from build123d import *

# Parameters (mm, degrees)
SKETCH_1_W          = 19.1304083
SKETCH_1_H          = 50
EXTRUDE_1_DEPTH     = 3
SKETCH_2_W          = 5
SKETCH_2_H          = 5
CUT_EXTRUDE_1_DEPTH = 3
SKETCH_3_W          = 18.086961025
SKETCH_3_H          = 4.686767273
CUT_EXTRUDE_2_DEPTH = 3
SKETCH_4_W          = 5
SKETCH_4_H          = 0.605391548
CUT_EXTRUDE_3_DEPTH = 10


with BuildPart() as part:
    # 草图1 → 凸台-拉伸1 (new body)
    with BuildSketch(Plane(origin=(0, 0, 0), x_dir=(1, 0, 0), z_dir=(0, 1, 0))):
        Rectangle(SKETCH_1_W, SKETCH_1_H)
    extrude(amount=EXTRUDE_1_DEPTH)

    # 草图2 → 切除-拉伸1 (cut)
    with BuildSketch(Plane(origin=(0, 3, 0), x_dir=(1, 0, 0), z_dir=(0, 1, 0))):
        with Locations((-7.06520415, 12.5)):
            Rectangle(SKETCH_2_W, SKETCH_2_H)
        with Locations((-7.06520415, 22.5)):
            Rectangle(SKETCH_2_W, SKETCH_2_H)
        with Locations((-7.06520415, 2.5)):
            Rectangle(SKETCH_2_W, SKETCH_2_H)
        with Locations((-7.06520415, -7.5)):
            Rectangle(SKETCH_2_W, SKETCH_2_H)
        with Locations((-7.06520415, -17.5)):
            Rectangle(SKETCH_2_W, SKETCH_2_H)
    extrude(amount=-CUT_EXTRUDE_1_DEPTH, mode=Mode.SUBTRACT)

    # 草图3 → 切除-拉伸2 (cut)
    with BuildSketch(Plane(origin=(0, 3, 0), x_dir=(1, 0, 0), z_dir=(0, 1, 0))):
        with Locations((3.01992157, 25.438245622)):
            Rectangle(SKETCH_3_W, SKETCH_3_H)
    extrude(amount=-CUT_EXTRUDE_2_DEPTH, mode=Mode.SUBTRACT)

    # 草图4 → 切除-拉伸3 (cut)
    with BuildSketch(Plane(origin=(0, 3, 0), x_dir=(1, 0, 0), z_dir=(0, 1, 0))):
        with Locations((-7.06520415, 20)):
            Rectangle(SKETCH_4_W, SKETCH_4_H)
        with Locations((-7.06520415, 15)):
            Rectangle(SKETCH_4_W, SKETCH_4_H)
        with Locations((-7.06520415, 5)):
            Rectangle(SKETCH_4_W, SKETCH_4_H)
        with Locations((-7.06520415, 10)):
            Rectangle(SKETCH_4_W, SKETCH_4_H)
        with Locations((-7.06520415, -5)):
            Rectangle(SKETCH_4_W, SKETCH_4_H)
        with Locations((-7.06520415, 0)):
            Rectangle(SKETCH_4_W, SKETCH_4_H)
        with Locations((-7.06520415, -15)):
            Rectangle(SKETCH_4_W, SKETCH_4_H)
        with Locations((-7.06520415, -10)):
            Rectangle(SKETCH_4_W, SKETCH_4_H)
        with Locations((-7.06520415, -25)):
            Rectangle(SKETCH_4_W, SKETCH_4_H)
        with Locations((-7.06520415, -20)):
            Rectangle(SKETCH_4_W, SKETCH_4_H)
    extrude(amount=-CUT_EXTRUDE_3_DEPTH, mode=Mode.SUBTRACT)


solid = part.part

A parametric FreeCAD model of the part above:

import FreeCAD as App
import Part
import Sketcher
from FreeCAD import Vector
Q = App.Units.Quantity

doc = App.newDocument("Part")
params = doc.addObject("Spreadsheet::Sheet", "Params")
for row, (alias, value) in enumerate([
    ("sketch1_height", "50 mm"),
    ("pad1_length", "3 mm"),
    ("sketch2_width", "5 mm"),
    ("pocket1_length", "3 mm"),
    ("pocket2_length", "3 mm"),
    ("sketch4_width", "5 mm"),
    ("pocket3_length", "10 mm"),
], start=1):
    params.set(f"A{row}", alias)
    params.set(f"B{row}", "=" + value)
    params.setAlias(f"B{row}", alias)

body = doc.addObject("PartDesign::Body", "Body")

# Sketch on XZ plane
sketch1 = body.newObject("Sketcher::SketchObject", "Sketch")
sketch1.AttachmentSupport = (doc.getObject("XZ_Plane"), [""])
sketch1.MapMode = "FlatFace"
sketch1.addGeometry(Part.LineSegment(Vector(-9.565204, -25, 0), Vector(-9.565204, 25, 0)), False)
sketch1.addGeometry(Part.LineSegment(Vector(-9.565204, 25, 0), Vector(9.565204, 25, 0)), False)
sketch1.addGeometry(Part.LineSegment(Vector(9.565204, 25, 0), Vector(9.565204, -25, 0)), False)
sketch1.addGeometry(Part.LineSegment(Vector(9.565204, -25, 0), Vector(-9.565204, -25, 0)), False)
sketch1.addConstraint(Sketcher.Constraint("Coincident", 0, 2, 1, 1))
sketch1.addConstraint(Sketcher.Constraint("Coincident", 1, 2, 2, 1))
sketch1.addConstraint(Sketcher.Constraint("Coincident", 2, 2, 3, 1))
sketch1.addConstraint(Sketcher.Constraint("Coincident", 3, 2, 0, 1))
sketch1.addConstraint(Sketcher.Constraint("Vertical", 0))
sketch1.addConstraint(Sketcher.Constraint("Horizontal", 1))
sketch1.addConstraint(Sketcher.Constraint("Vertical", 2))
sketch1.addConstraint(Sketcher.Constraint("Horizontal", 3))
sketch1.addConstraint(Sketcher.Constraint("Symmetric", 0, 2, 2, 2, -1, 1))
sketch1.addConstraint(Sketcher.Constraint("DistanceY", 0, 1, 0, 2, Q("50 mm")))
sketch1.addConstraint(Sketcher.Constraint("DistanceX", 1, 1, 1, 2, Q("19.130408 mm")))
sketch1.setExpression("Constraints[9]", "Params.sketch1_height")
pad1 = body.newObject("PartDesign::Pad", "Pad")
pad1.Profile = sketch1
pad1.setExpression("Length", "Params.pad1_length")
pad1.Reversed = True

# Sketch on XZ plane
sketch2 = body.newObject("Sketcher::SketchObject", "Sketch001")
sketch2.AttachmentSupport = (doc.getObject("XZ_Plane"), [""])
sketch2.MapMode = "FlatFace"
sketch2.AttachmentOffset = App.Placement(Vector(0, 0, -3), App.Rotation())
sketch2.addGeometry(Part.LineSegment(Vector(-9.565204, -15, 0), Vector(-9.565204, -10, 0)), False)
sketch2.addGeometry(Part.LineSegment(Vector(-9.565204, -10, 0), Vector(-4.565204, -10, 0)), False)
sketch2.addGeometry(Part.LineSegment(Vector(-4.565204, -10, 0), Vector(-4.565204, -15, 0)), False)
sketch2.addGeometry(Part.LineSegment(Vector(-4.565204, -15, 0), Vector(-9.565204, -15, 0)), False)
sketch2.addGeometry(Part.LineSegment(Vector(-9.565204, -25, 0), Vector(-9.565204, -20, 0)), False)
sketch2.addGeometry(Part.LineSegment(Vector(-9.565204, -20, 0), Vector(-4.565204, -20, 0)), False)
sketch2.addGeometry(Part.LineSegment(Vector(-4.565204, -20, 0), Vector(-4.565204, -25, 0)), False)
sketch2.addGeometry(Part.LineSegment(Vector(-4.565204, -25, 0), Vector(-9.565204, -25, 0)), False)
sketch2.addGeometry(Part.LineSegment(Vector(-9.565204, -5, 0), Vector(-9.565204, 0, 0)), False)
sketch2.addGeometry(Part.LineSegment(Vector(-9.565204, 0, 0), Vector(-4.565204, 0, 0)), False)
sketch2.addGeometry(Part.LineSegment(Vector(-4.565204, 0, 0), Vector(-4.565204, -5, 0)), False)
sketch2.addGeometry(Part.LineSegment(Vector(-4.565204, -5, 0), Vector(-9.565204, -5, 0)), False)
sketch2.addGeometry(Part.LineSegment(Vector(-9.565204, 5, 0), Vector(-9.565204, 10, 0)), False)
sketch2.addGeometry(Part.LineSegment(Vector(-9.565204, 10, 0), Vector(-4.565204, 10, 0)), False)
sketch2.addGeometry(Part.LineSegment(Vector(-4.565204, 10, 0), Vector(-4.565204, 5, 0)), False)
sketch2.addGeometry(Part.LineSegment(Vector(-4.565204, 5, 0), Vector(-9.565204, 5, 0)), False)
sketch2.addGeometry(Part.LineSegment(Vector(-9.565204, 15, 0), Vector(-9.565204, 20, 0)), False)
sketch2.addGeometry(Part.LineSegment(Vector(-9.565204, 20, 0), Vector(-4.565204, 20, 0)), False)
sketch2.addGeometry(Part.LineSegment(Vector(-4.565204, 20, 0), Vector(-4.565204, 15, 0)), False)
sketch2.addGeometry(Part.LineSegment(Vector(-4.565204, 15, 0), Vector(-9.565204, 15, 0)), False)
sketch2.addConstraint(Sketcher.Constraint("Coincident", 0, 2, 1, 1))
sketch2.addConstraint(Sketcher.Constraint("Coincident", 1, 2, 2, 1))
sketch2.addConstraint(Sketcher.Constraint("Coincident", 2, 2, 3, 1))
sketch2.addConstraint(Sketcher.Constraint("Coincident", 3, 2, 0, 1))
sketch2.addConstraint(Sketcher.Constraint("Coincident", 4, 2, 5, 1))
sketch2.addConstraint(Sketcher.Constraint("Coincident", 5, 2, 6, 1))
sketch2.addConstraint(Sketcher.Constraint("Coincident", 6, 2, 7, 1))
sketch2.addConstraint(Sketcher.Constraint("Coincident", 7, 2, 4, 1))
sketch2.addConstraint(Sketcher.Constraint("Coincident", 8, 2, 9, 1))
sketch2.addConstraint(Sketcher.Constraint("Coincident", 9, 2, 10, 1))
sketch2.addConstraint(Sketcher.Constraint("Coincident", 10, 2, 11, 1))
sketch2.addConstraint(Sketcher.Constraint("Coincident", 11, 2, 8, 1))
sketch2.addConstraint(Sketcher.Constraint("Coincident", 12, 2, 13, 1))
sketch2.addConstraint(Sketcher.Constraint("Coincident", 13, 2, 14, 1))
sketch2.addConstraint(Sketcher.Constraint("Coincident", 14, 2, 15, 1))
sketch2.addConstraint(Sketcher.Constraint("Coincident", 15, 2, 12, 1))
sketch2.addConstraint(Sketcher.Constraint("Coincident", 16, 2, 17, 1))
sketch2.addConstraint(Sketcher.Constraint("Coincident", 17, 2, 18, 1))
sketch2.addConstraint(Sketcher.Constraint("Coincident", 18, 2, 19, 1))
sketch2.addConstraint(Sketcher.Constraint("Coincident", 19, 2, 16, 1))
sketch2.addConstraint(Sketcher.Constraint("Vertical", 0))
sketch2.addConstraint(Sketcher.Constraint("Horizontal", 1))
sketch2.addConstraint(Sketcher.Constraint("Vertical", 2))
sketch2.addConstraint(Sketcher.Constraint("Horizontal", 3))
sketch2.addConstraint(Sketcher.Constraint("Vertical", 4))
sketch2.addConstraint(Sketcher.Constraint("Horizontal", 5))
sketch2.addConstraint(Sketcher.Constraint("Vertical", 6))
sketch2.addConstraint(Sketcher.Constraint("Horizontal", 7))
sketch2.addConstraint(Sketcher.Constraint("Vertical", 8))
sketch2.addConstraint(Sketcher.Constraint("Horizontal", 9))
sketch2.addConstraint(Sketcher.Constraint("Vertical", 10))
sketch2.addConstraint(Sketcher.Constraint("Horizontal", 11))
sketch2.addConstraint(Sketcher.Constraint("Vertical", 12))
sketch2.addConstraint(Sketcher.Constraint("Horizontal", 13))
sketch2.addConstraint(Sketcher.Constraint("Vertical", 14))
sketch2.addConstraint(Sketcher.Constraint("Horizontal", 15))
sketch2.addConstraint(Sketcher.Constraint("Vertical", 16))
sketch2.addConstraint(Sketcher.Constraint("Horizontal", 17))
sketch2.addConstraint(Sketcher.Constraint("Vertical", 18))
sketch2.addConstraint(Sketcher.Constraint("Horizontal", 19))
sketch2.addConstraint(Sketcher.Constraint("Symmetric", 0, 2, 12, 2, -1))
sketch2.addConstraint(Sketcher.Constraint("Symmetric", 10, 2, 14, 2, -1))
sketch2.addConstraint(Sketcher.Constraint("Symmetric", 4, 2, 16, 2, -1))
sketch2.addConstraint(Sketcher.Constraint("Symmetric", 2, 2, 18, 2, -1))
sketch2.addConstraint(Sketcher.Constraint("PointOnObject", 8, 2, -1))
sketch2.addConstraint(Sketcher.Constraint("Vertical", 3, 2, 4, 2))
sketch2.addConstraint(Sketcher.Constraint("Vertical", 2, 2, 5, 2))
sketch2.addConstraint(Sketcher.Constraint("Vertical", 7, 2, 8, 2))
sketch2.addConstraint(Sketcher.Constraint("Vertical", 6, 2, 9, 2))
sketch2.addConstraint(Sketcher.Constraint("Equal", 19, 0))
sketch2.addConstraint(Sketcher.Constraint("Equal", 2, 4))
sketch2.addConstraint(Sketcher.Constraint("Equal", 6, 8))
sketch2.addConstraint(Sketcher.Constraint("Equal", 10, 12))
sketch2.addConstraint(Sketcher.Constraint("Equal", 14, 16))
sketch2.addConstraint(Sketcher.Constraint("DistanceX", 1, 1, 1, 2, Q("5 mm")))
sketch2.addConstraint(Sketcher.Constraint("DistanceX", 0, 2, -1, 1, Q("9.565204 mm")))
sketch2.setExpression("Constraints[54]", "Params.sketch2_width")
pocket1 = body.newObject("PartDesign::Pocket", "Pocket")
pocket1.Profile = sketch2
pocket1.setExpression("Length", "Params.pocket1_length")
pocket1.Reversed = True

# Sketch on XZ plane
sketch3 = body.newObject("Sketcher::SketchObject", "Sketch002")
sketch3.AttachmentSupport = (doc.getObject("XZ_Plane"), [""])
sketch3.MapMode = "FlatFace"
sketch3.AttachmentOffset = App.Placement(Vector(0, 0, -3), App.Rotation())
sketch3.addGeometry(Part.LineSegment(Vector(-6.023559, -27.781629, 0), Vector(-6.023559, -23.094862, 0)), False)
sketch3.addGeometry(Part.LineSegment(Vector(-6.023559, -23.094862, 0), Vector(12.063402, -23.094862, 0)), False)
sketch3.addGeometry(Part.LineSegment(Vector(12.063402, -23.094862, 0), Vector(12.063402, -27.781629, 0)), False)
sketch3.addGeometry(Part.LineSegment(Vector(12.063402, -27.781629, 0), Vector(-6.023559, -27.781629, 0)), False)
sketch3.addConstraint(Sketcher.Constraint("Coincident", 0, 2, 1, 1))
sketch3.addConstraint(Sketcher.Constraint("Coincident", 1, 2, 2, 1))
sketch3.addConstraint(Sketcher.Constraint("Coincident", 2, 2, 3, 1))
sketch3.addConstraint(Sketcher.Constraint("Coincident", 3, 2, 0, 1))
sketch3.addConstraint(Sketcher.Constraint("Vertical", 0))
sketch3.addConstraint(Sketcher.Constraint("Horizontal", 1))
sketch3.addConstraint(Sketcher.Constraint("Vertical", 2))
sketch3.addConstraint(Sketcher.Constraint("Horizontal", 3))
sketch3.addConstraint(Sketcher.Constraint("DistanceX", 1, 1, 1, 2, Q("18.086961 mm")))
sketch3.addConstraint(Sketcher.Constraint("DistanceY", 0, 1, 0, 2, Q("4.686767 mm")))
sketch3.addConstraint(Sketcher.Constraint("DistanceX", 0, 2, -1, 1, Q("6.023559 mm")))
sketch3.addConstraint(Sketcher.Constraint("DistanceY", 0, 2, -1, 1, Q("23.094862 mm")))
pocket2 = body.newObject("PartDesign::Pocket", "Pocket001")
pocket2.Profile = sketch3
pocket2.setExpression("Length", "Params.pocket2_length")
pocket2.Reversed = True

# Sketch on XZ plane
sketch4 = body.newObject("Sketcher::SketchObject", "Sketch003")
sketch4.AttachmentSupport = (doc.getObject("XZ_Plane"), [""])
sketch4.MapMode = "FlatFace"
sketch4.AttachmentOffset = App.Placement(Vector(0, 0, -3), App.Rotation())
sketch4.addGeometry(Part.LineSegment(Vector(-9.565204, -20.302696, 0), Vector(-9.565204, -19.697304, 0)), False)
sketch4.addGeometry(Part.LineSegment(Vector(-9.565204, -19.697304, 0), Vector(-4.565204, -19.697304, 0)), False)
sketch4.addGeometry(Part.LineSegment(Vector(-4.565204, -19.697304, 0), Vector(-4.565204, -20.302696, 0)), False)
sketch4.addGeometry(Part.LineSegment(Vector(-4.565204, -20.302696, 0), Vector(-9.565204, -20.302696, 0)), False)
sketch4.addGeometry(Part.LineSegment(Vector(-9.565204, -15.302696, 0), Vector(-9.565204, -14.697304, 0)), False)
sketch4.addGeometry(Part.LineSegment(Vector(-9.565204, -14.697304, 0), Vector(-4.565204, -14.697304, 0)), False)
sketch4.addGeometry(Part.LineSegment(Vector(-4.565204, -14.697304, 0), Vector(-4.565204, -15.302696, 0)), False)
sketch4.addGeometry(Part.LineSegment(Vector(-4.565204, -15.302696, 0), Vector(-9.565204, -15.302696, 0)), False)
sketch4.addGeometry(Part.LineSegment(Vector(-9.565204, -5.302696, 0), Vector(-9.565204, -4.697304, 0)), False)
sketch4.addGeometry(Part.LineSegment(Vector(-9.565204, -4.697304, 0), Vector(-4.565204, -4.697304, 0)), False)
sketch4.addGeometry(Part.LineSegment(Vector(-4.565204, -4.697304, 0), Vector(-4.565204, -5.302696, 0)), False)
sketch4.addGeometry(Part.LineSegment(Vector(-4.565204, -5.302696, 0), Vector(-9.565204, -5.302696, 0)), False)
sketch4.addGeometry(Part.LineSegment(Vector(-9.565204, -10.302696, 0), Vector(-9.565204, -9.697304, 0)), False)
sketch4.addGeometry(Part.LineSegment(Vector(-9.565204, -9.697304, 0), Vector(-4.565204, -9.697304, 0)), False)
sketch4.addGeometry(Part.LineSegment(Vector(-4.565204, -9.697304, 0), Vector(-4.565204, -10.302696, 0)), False)
sketch4.addGeometry(Part.LineSegment(Vector(-4.565204, -10.302696, 0), Vector(-9.565204, -10.302696, 0)), False)
sketch4.addGeometry(Part.LineSegment(Vector(-9.565204, 4.697304, 0), Vector(-9.565204, 5.302696, 0)), False)
sketch4.addGeometry(Part.LineSegment(Vector(-9.565204, 5.302696, 0), Vector(-4.565204, 5.302696, 0)), False)
sketch4.addGeometry(Part.LineSegment(Vector(-4.565204, 5.302696, 0), Vector(-4.565204, 4.697304, 0)), False)
sketch4.addGeometry(Part.LineSegment(Vector(-4.565204, 4.697304, 0), Vector(-9.565204, 4.697304, 0)), False)
sketch4.addGeometry(Part.LineSegment(Vector(-9.565204, -0.302696, 0), Vector(-9.565204, 0.302696, 0)), False)
sketch4.addGeometry(Part.LineSegment(Vector(-9.565204, 0.302696, 0), Vector(-4.565204, 0.302696, 0)), False)
sketch4.addGeometry(Part.LineSegment(Vector(-4.565204, 0.302696, 0), Vector(-4.565204, -0.302696, 0)), False)
sketch4.addGeometry(Part.LineSegment(Vector(-4.565204, -0.302696, 0), Vector(-9.565204, -0.302696, 0)), False)
sketch4.addGeometry(Part.LineSegment(Vector(-9.565204, 14.697304, 0), Vector(-9.565204, 15.302696, 0)), False)
sketch4.addGeometry(Part.LineSegment(Vector(-9.565204, 15.302696, 0), Vector(-4.565204, 15.302696, 0)), False)
sketch4.addGeometry(Part.LineSegment(Vector(-4.565204, 15.302696, 0), Vector(-4.565204, 14.697304, 0)), False)
sketch4.addGeometry(Part.LineSegment(Vector(-4.565204, 14.697304, 0), Vector(-9.565204, 14.697304, 0)), False)
sketch4.addGeometry(Part.LineSegment(Vector(-9.565204, 9.697304, 0), Vector(-9.565204, 10.302696, 0)), False)
sketch4.addGeometry(Part.LineSegment(Vector(-9.565204, 10.302696, 0), Vector(-4.565204, 10.302696, 0)), False)
sketch4.addGeometry(Part.LineSegment(Vector(-4.565204, 10.302696, 0), Vector(-4.565204, 9.697304, 0)), False)
sketch4.addGeometry(Part.LineSegment(Vector(-4.565204, 9.697304, 0), Vector(-9.565204, 9.697304, 0)), False)
sketch4.addGeometry(Part.LineSegment(Vector(-9.565204, 24.697304, 0), Vector(-9.565204, 25.302696, 0)), False)
sketch4.addGeometry(Part.LineSegment(Vector(-9.565204, 25.302696, 0), Vector(-4.565204, 25.302696, 0)), False)
sketch4.addGeometry(Part.LineSegment(Vector(-4.565204, 25.302696, 0), Vector(-4.565204, 24.697304, 0)), False)
sketch4.addGeometry(Part.LineSegment(Vector(-4.565204, 24.697304, 0), Vector(-9.565204, 24.697304, 0)), False)
sketch4.addGeometry(Part.LineSegment(Vector(-9.565204, 19.697304, 0), Vector(-9.565204, 20.302696, 0)), False)
sketch4.addGeometry(Part.LineSegment(Vector(-9.565204, 20.302696, 0), Vector(-4.565204, 20.302696, 0)), False)
sketch4.addGeometry(Part.LineSegment(Vector(-4.565204, 20.302696, 0), Vector(-4.565204, 19.697304, 0)), False)
sketch4.addGeometry(Part.LineSegment(Vector(-4.565204, 19.697304, 0), Vector(-9.565204, 19.697304, 0)), False)
sketch4.addConstraint(Sketcher.Constraint("Coincident", 0, 2, 1, 1))
sketch4.addConstraint(Sketcher.Constraint("Coincident", 1, 2, 2, 1))
sketch4.addConstraint(Sketcher.Constraint("Coincident", 2, 2, 3, 1))
sketch4.addConstraint(Sketcher.Constraint("Coincident", 3, 2, 0, 1))
sketch4.addConstraint(Sketcher.Constraint("Coincident", 4, 2, 5, 1))
sketch4.addConstraint(Sketcher.Constraint("Coincident", 5, 2, 6, 1))
sketch4.addConstraint(Sketcher.Constraint("Coincident", 6, 2, 7, 1))
sketch4.addConstraint(Sketcher.Constraint("Coincident", 7, 2, 4, 1))
sketch4.addConstraint(Sketcher.Constraint("Coincident", 8, 2, 9, 1))
sketch4.addConstraint(Sketcher.Constraint("Coincident", 9, 2, 10, 1))
sketch4.addConstraint(Sketcher.Constraint("Coincident", 10, 2, 11, 1))
sketch4.addConstraint(Sketcher.Constraint("Coincident", 11, 2, 8, 1))
sketch4.addConstraint(Sketcher.Constraint("Coincident", 12, 2, 13, 1))
sketch4.addConstraint(Sketcher.Constraint("Coincident", 13, 2, 14, 1))
sketch4.addConstraint(Sketcher.Constraint("Coincident", 14, 2, 15, 1))
sketch4.addConstraint(Sketcher.Constraint("Coincident", 15, 2, 12, 1))
sketch4.addConstraint(Sketcher.Constraint("Coincident", 16, 2, 17, 1))
sketch4.addConstraint(Sketcher.Constraint("Coincident", 17, 2, 18, 1))
sketch4.addConstraint(Sketcher.Constraint("Coincident", 18, 2, 19, 1))
sketch4.addConstraint(Sketcher.Constraint("Coincident", 19, 2, 16, 1))
sketch4.addConstraint(Sketcher.Constraint("Coincident", 20, 2, 21, 1))
sketch4.addConstraint(Sketcher.Constraint("Coincident", 21, 2, 22, 1))
sketch4.addConstraint(Sketcher.Constraint("Coincident", 22, 2, 23, 1))
sketch4.addConstraint(Sketcher.Constraint("Coincident", 23, 2, 20, 1))
sketch4.addConstraint(Sketcher.Constraint("Coincident", 24, 2, 25, 1))
sketch4.addConstraint(Sketcher.Constraint("Coincident", 25, 2, 26, 1))
sketch4.addConstraint(Sketcher.Constraint("Coincident", 26, 2, 27, 1))
sketch4.addConstraint(Sketcher.Constraint("Coincident", 27, 2, 24, 1))
sketch4.addConstraint(Sketcher.Constraint("Coincident", 28, 2, 29, 1))
sketch4.addConstraint(Sketcher.Constraint("Coincident", 29, 2, 30, 1))
sketch4.addConstraint(Sketcher.Constraint("Coincident", 30, 2, 31, 1))
sketch4.addConstraint(Sketcher.Constraint("Coincident", 31, 2, 28, 1))
sketch4.addConstraint(Sketcher.Constraint("Coincident", 32, 2, 33, 1))
sketch4.addConstraint(Sketcher.Constraint("Coincident", 33, 2, 34, 1))
sketch4.addConstraint(Sketcher.Constraint("Coincident", 34, 2, 35, 1))
sketch4.addConstraint(Sketcher.Constraint("Coincident", 35, 2, 32, 1))
sketch4.addConstraint(Sketcher.Constraint("Coincident", 36, 2, 37, 1))
sketch4.addConstraint(Sketcher.Constraint("Coincident", 37, 2, 38, 1))
sketch4.addConstraint(Sketcher.Constraint("Coincident", 38, 2, 39, 1))
sketch4.addConstraint(Sketcher.Constraint("Coincident", 39, 2, 36, 1))
sketch4.addConstraint(Sketcher.Constraint("Vertical", 0))
sketch4.addConstraint(Sketcher.Constraint("Horizontal", 1))
sketch4.addConstraint(Sketcher.Constraint("Vertical", 2))
sketch4.addConstraint(Sketcher.Constraint("Horizontal", 3))
sketch4.addConstraint(Sketcher.Constraint("Vertical", 4))
sketch4.addConstraint(Sketcher.Constraint("Horizontal", 5))
sketch4.addConstraint(Sketcher.Constraint("Vertical", 6))
sketch4.addConstraint(Sketcher.Constraint("Horizontal", 7))
sketch4.addConstraint(Sketcher.Constraint("Vertical", 8))
sketch4.addConstraint(Sketcher.Constraint("Horizontal", 9))
sketch4.addConstraint(Sketcher.Constraint("Vertical", 10))
sketch4.addConstraint(Sketcher.Constraint("Horizontal", 11))
sketch4.addConstraint(Sketcher.Constraint("Vertical", 12))
sketch4.addConstraint(Sketcher.Constraint("Horizontal", 13))
sketch4.addConstraint(Sketcher.Constraint("Vertical", 14))
sketch4.addConstraint(Sketcher.Constraint("Horizontal", 15))
sketch4.addConstraint(Sketcher.Constraint("Vertical", 16))
sketch4.addConstraint(Sketcher.Constraint("Horizontal", 17))
sketch4.addConstraint(Sketcher.Constraint("Vertical", 18))
sketch4.addConstraint(Sketcher.Constraint("Horizontal", 19))
sketch4.addConstraint(Sketcher.Constraint("Vertical", 20))
sketch4.addConstraint(Sketcher.Constraint("Horizontal", 21))
sketch4.addConstraint(Sketcher.Constraint("Vertical", 22))
sketch4.addConstraint(Sketcher.Constraint("Horizontal", 23))
sketch4.addConstraint(Sketcher.Constraint("Vertical", 24))
sketch4.addConstraint(Sketcher.Constraint("Horizontal", 25))
sketch4.addConstraint(Sketcher.Constraint("Vertical", 26))
sketch4.addConstraint(Sketcher.Constraint("Horizontal", 27))
sketch4.addConstraint(Sketcher.Constraint("Vertical", 28))
sketch4.addConstraint(Sketcher.Constraint("Horizontal", 29))
sketch4.addConstraint(Sketcher.Constraint("Vertical", 30))
sketch4.addConstraint(Sketcher.Constraint("Horizontal", 31))
sketch4.addConstraint(Sketcher.Constraint("Vertical", 32))
sketch4.addConstraint(Sketcher.Constraint("Horizontal", 33))
sketch4.addConstraint(Sketcher.Constraint("Vertical", 34))
sketch4.addConstraint(Sketcher.Constraint("Horizontal", 35))
sketch4.addConstraint(Sketcher.Constraint("Vertical", 36))
sketch4.addConstraint(Sketcher.Constraint("Horizontal", 37))
sketch4.addConstraint(Sketcher.Constraint("Vertical", 38))
sketch4.addConstraint(Sketcher.Constraint("Horizontal", 39))
sketch4.addConstraint(Sketcher.Constraint("Symmetric", 11, 2, 16, 2, -1))
sketch4.addConstraint(Sketcher.Constraint("Symmetric", 9, 2, 18, 2, -1))
sketch4.addConstraint(Sketcher.Constraint("Symmetric", 7, 2, 24, 2, -1))
sketch4.addConstraint(Sketcher.Constraint("Symmetric", 5, 2, 26, 2, -1))
sketch4.addConstraint(Sketcher.Constraint("Symmetric", 15, 2, 28, 2, -1))
sketch4.addConstraint(Sketcher.Constraint("Symmetric", 13, 2, 30, 2, -1))
sketch4.addConstraint(Sketcher.Constraint("Symmetric", 3, 2, 36, 2, -1))
sketch4.addConstraint(Sketcher.Constraint("Symmetric", 1, 2, 38, 2, -1))
sketch4.addConstraint(Sketcher.Constraint("Vertical", 3, 2, 4, 2))
sketch4.addConstraint(Sketcher.Constraint("Vertical", 2, 2, 5, 2))
sketch4.addConstraint(Sketcher.Constraint("Vertical", 7, 2, 8, 2))
sketch4.addConstraint(Sketcher.Constraint("Vertical", 6, 2, 9, 2))
sketch4.addConstraint(Sketcher.Constraint("Vertical", 11, 2, 12, 2))
sketch4.addConstraint(Sketcher.Constraint("Vertical", 10, 2, 13, 2))
sketch4.addConstraint(Sketcher.Constraint("Vertical", 19, 2, 20, 2))
sketch4.addConstraint(Sketcher.Constraint("Vertical", 18, 2, 21, 2))
sketch4.addConstraint(Sketcher.Constraint("Vertical", 31, 2, 32, 2))
sketch4.addConstraint(Sketcher.Constraint("Vertical", 30, 2, 33, 2))
sketch4.addConstraint(Sketcher.Constraint("Equal", 2, 4))
sketch4.addConstraint(Sketcher.Constraint("Equal", 6, 8))
sketch4.addConstraint(Sketcher.Constraint("Equal", 10, 12))
sketch4.addConstraint(Sketcher.Constraint("Equal", 18, 20))
sketch4.addConstraint(Sketcher.Constraint("Equal", 30, 32))
sketch4.addConstraint(Sketcher.Constraint("DistanceX", 1, 1, 1, 2, Q("5 mm")))
sketch4.addConstraint(Sketcher.Constraint("DistanceY", 0, 2, 4, 2, Q("5 mm")))
sketch4.addConstraint(Sketcher.Constraint("DistanceY", 4, 2, 8, 2, Q("10 mm")))
sketch4.addConstraint(Sketcher.Constraint("DistanceY", 4, 2, 12, 2, Q("5 mm")))
sketch4.addConstraint(Sketcher.Constraint("DistanceY", 8, 2, 16, 2, Q("10 mm")))
sketch4.addConstraint(Sketcher.Constraint("DistanceY", 8, 2, 20, 2, Q("5 mm")))
sketch4.addConstraint(Sketcher.Constraint("DistanceY", 24, 2, 32, 2, Q("10 mm")))
sketch4.addConstraint(Sketcher.Constraint("DistanceY", 0, 1, 0, 2, Q("0.605392 mm")))
sketch4.addConstraint(Sketcher.Constraint("DistanceX", 0, 2, -1, 1, Q("9.565204 mm")))
sketch4.setExpression("Constraints[103]", "Params.sketch4_width")
pocket3 = body.newObject("PartDesign::Pocket", "Pocket002")
pocket3.Profile = sketch4
pocket3.setExpression("Length", "Params.pocket3_length")
pocket3.Reversed = True

doc.recompute()
